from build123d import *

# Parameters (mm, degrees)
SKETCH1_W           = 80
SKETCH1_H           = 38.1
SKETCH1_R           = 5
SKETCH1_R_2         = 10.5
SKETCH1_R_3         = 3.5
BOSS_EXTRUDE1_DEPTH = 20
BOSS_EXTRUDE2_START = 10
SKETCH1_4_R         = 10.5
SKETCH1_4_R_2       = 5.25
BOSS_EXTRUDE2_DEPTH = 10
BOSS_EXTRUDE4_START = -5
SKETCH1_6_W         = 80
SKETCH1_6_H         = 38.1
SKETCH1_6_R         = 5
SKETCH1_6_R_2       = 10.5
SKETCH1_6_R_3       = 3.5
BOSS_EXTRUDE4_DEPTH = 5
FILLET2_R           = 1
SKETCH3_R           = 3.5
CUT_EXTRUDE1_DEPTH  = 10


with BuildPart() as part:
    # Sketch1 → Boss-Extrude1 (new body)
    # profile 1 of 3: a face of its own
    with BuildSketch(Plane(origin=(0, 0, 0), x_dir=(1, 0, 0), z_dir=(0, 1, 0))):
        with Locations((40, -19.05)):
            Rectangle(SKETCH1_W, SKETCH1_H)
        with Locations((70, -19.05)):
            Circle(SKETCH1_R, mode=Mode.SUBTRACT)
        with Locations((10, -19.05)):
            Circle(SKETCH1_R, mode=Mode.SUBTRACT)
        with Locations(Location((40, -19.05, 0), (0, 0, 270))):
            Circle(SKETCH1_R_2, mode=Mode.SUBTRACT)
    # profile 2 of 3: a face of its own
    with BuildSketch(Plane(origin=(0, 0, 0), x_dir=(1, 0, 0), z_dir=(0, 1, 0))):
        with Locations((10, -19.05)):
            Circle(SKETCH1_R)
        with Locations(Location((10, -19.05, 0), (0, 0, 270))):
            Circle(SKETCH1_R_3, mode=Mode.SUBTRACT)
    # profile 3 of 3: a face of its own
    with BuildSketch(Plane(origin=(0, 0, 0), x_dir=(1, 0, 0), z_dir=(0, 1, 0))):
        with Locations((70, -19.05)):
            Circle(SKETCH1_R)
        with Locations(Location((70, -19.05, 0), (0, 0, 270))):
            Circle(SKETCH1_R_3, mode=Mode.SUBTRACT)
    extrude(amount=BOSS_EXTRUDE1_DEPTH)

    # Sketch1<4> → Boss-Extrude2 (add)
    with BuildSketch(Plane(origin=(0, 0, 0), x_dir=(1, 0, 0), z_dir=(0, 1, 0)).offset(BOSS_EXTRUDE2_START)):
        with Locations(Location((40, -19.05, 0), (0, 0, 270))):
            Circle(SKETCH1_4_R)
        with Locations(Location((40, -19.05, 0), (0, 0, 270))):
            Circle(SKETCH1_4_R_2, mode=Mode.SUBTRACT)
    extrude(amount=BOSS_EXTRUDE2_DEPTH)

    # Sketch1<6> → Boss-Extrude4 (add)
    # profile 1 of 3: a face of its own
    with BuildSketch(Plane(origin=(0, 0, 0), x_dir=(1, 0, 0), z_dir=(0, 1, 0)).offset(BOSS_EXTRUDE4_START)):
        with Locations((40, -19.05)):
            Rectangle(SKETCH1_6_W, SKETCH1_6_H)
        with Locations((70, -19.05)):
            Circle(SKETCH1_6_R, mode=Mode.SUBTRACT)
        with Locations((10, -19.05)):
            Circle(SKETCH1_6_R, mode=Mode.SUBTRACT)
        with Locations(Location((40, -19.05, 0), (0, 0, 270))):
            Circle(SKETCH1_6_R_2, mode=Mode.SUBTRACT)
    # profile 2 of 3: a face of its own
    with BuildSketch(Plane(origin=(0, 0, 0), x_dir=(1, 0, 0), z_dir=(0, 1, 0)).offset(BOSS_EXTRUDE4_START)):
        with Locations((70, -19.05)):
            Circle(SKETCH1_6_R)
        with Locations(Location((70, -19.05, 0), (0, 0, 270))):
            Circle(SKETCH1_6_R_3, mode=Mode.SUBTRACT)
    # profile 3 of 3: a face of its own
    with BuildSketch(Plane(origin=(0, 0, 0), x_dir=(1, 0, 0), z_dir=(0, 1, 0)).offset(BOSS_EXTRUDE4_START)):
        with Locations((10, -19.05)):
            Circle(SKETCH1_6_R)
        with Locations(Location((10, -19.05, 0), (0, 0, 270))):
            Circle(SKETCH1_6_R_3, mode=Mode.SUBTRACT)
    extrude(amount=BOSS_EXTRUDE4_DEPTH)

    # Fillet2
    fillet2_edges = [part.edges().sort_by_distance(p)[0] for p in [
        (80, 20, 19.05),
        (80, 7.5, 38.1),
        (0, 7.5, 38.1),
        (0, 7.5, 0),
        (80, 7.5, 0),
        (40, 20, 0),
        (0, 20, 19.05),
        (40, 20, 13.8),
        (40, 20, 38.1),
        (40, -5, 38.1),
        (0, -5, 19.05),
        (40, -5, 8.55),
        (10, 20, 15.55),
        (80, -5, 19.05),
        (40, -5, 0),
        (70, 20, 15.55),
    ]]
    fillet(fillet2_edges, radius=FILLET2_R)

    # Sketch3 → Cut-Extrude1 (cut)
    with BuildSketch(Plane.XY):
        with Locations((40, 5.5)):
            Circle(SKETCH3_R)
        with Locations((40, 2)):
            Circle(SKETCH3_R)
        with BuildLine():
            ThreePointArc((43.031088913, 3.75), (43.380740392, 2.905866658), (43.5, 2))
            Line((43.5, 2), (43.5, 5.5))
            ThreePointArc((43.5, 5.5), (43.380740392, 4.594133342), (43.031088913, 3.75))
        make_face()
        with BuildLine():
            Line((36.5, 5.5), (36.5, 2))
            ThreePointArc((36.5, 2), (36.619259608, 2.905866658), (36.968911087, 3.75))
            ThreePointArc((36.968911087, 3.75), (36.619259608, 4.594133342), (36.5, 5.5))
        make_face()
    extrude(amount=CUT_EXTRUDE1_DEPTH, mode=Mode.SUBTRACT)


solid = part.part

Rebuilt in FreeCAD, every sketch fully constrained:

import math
import FreeCAD as App
import Part
import Sketcher


def edges_at(feature, points):
    """Names of the edges that pass closest to the given points."""
    edges = feature.Shape.Edges
    near = lambda p: min(range(len(edges)), key=lambda i: edges[i].distToShape(Part.Vertex(*p))[0])
    return sorted({f"Edge{near(p) + 1}" for p in points})

doc = App.newDocument("Part")
body = doc.addObject("PartDesign::Body", "Body")

sketch1 = doc.addObject("Sketcher::SketchObject", "Sketch")
body.addObject(sketch1)
sketch1.AttachmentSupport = (doc.XZ_Plane, [""])
sketch1.MapMode = "FlatFace"
sketch1.addGeometry([
    Part.LineSegment(App.Vector(0, 0, 0), App.Vector(0, 38.1, 0)),
    Part.LineSegment(App.Vector(0, 38.1, 0), App.Vector(80, 38.1, 0)),
    Part.LineSegment(App.Vector(80, 38.1, 0), App.Vector(80, 0, 0)),
    Part.LineSegment(App.Vector(80, 0, 0), App.Vector(0, 0, 0)),
    Part.Circle(App.Vector(40, 19.1, 0), App.Vector(0, 0, 1), 10.5),
    Part.Circle(App.Vector(10, 19.1, 0), App.Vector(0, 0, 1), 3.5),
    Part.Circle(App.Vector(70, 19.1, 0), App.Vector(0, 0, 1), 3.5),
], False)
sketch1.addConstraint([
    Sketcher.Constraint("Coincident", 0, 2, 1, 1),
    Sketcher.Constraint("Coincident", 1, 2, 2, 1),
    Sketcher.Constraint("Coincident", 2, 2, 3, 1),
    Sketcher.Constraint("Coincident", 3, 2, 0, 1),
    Sketcher.Constraint("Vertical", 0),
    Sketcher.Constraint("Horizontal", 1),
    Sketcher.Constraint("Vertical", 2),
    Sketcher.Constraint("Horizontal", 3),
    Sketcher.Constraint("Coincident", 3, 2, -1, 1),
    Sketcher.Constraint("Equal", 5, 6),
    Sketcher.Constraint("Horizontal", 4, 3, 5, 3),
    Sketcher.Constraint("Horizontal", 5, 3, 6, 3),
    Sketcher.Constraint("Diameter", 4, 21.0),
    Sketcher.Constraint("Diameter", 5, 7.0),
    Sketcher.Constraint("DistanceX", 1, 1, 1, 2, 80.0),
    Sketcher.Constraint("DistanceY", 0, 1, 0, 2, 38.1),
    Sketcher.Constraint("DistanceX", -1, 1, 4, 3, 40.0),
    Sketcher.Constraint("DistanceX", -1, 1, 5, 3, 10.0),
    Sketcher.Constraint("DistanceX", -1, 1, 6, 3, 70.0),
    Sketcher.Constraint("DistanceY", -1, 1, 4, 3, 19.05),
])
pad1 = doc.addObject("PartDesign::Pad", "Pad")
body.addObject(pad1)
pad1.Profile = sketch1
pad1.Length = 20
pad1.Reversed = True

sketch2 = doc.addObject("Sketcher::SketchObject", "Sketch001")
body.addObject(sketch2)
sketch2.AttachmentSupport = (doc.XZ_Plane, [""])
sketch2.MapMode = "FlatFace"
sketch2.AttachmentOffset = App.Placement(App.Vector(0, 0, -10), App.Rotation())
sketch2.addGeometry([
    Part.Circle(App.Vector(40, 19, 0), App.Vector(0, 0, 1), 10),
    Part.Circle(App.Vector(40, 19, 0), App.Vector(0, 0, 1), 5),
], False)
sketch2.addConstraint([
    Sketcher.Constraint("Coincident", 1, 3, 0, 3),
    Sketcher.Constraint("Diameter", 0, 21.0),
    Sketcher.Constraint("Diameter", 1, 10.5),
    Sketcher.Constraint("DistanceX", -1, 1, 0, 3, 40.0),
    Sketcher.Constraint("DistanceY", -1, 1, 0, 3, 19.05),
])
pad2 = doc.addObject("PartDesign::Pad", "Pad001")
body.addObject(pad2)
pad2.Profile = sketch2
pad2.Length = 10
pad2.Reversed = True

sketch3 = doc.addObject("Sketcher::SketchObject", "Sketch002")
body.addObject(sketch3)
sketch3.AttachmentSupport = (doc.XZ_Plane, [""])
sketch3.MapMode = "FlatFace"
sketch3.AttachmentOffset = App.Placement(App.Vector(0, 0, 5), App.Rotation())
sketch3.addGeometry([
    Part.LineSegment(App.Vector(0, 0, 0), App.Vector(0, 38.1, 0)),
    Part.LineSegment(App.Vector(0, 38.1, 0), App.Vector(80, 38.1, 0)),
    Part.LineSegment(App.Vector(80, 38.1, 0), App.Vector(80, 0, 0)),
    Part.LineSegment(App.Vector(80, 0, 0), App.Vector(0, 0, 0)),
    Part.Circle(App.Vector(40, 19.1, 0), App.Vector(0, 0, 1), 10.5),
    Part.Circle(App.Vector(10, 19.1, 0), App.Vector(0, 0, 1), 3.5),
    Part.Circle(App.Vector(70, 19.1, 0), App.Vector(0, 0, 1), 3.5),
], False)
sketch3.addConstraint([
    Sketcher.Constraint("Coincident", 0, 2, 1, 1),
    Sketcher.Constraint("Coincident", 1, 2, 2, 1),
    Sketcher.Constraint("Coincident", 2, 2, 3, 1),
    Sketcher.Constraint("Coincident", 3, 2, 0, 1),
    Sketcher.Constraint("Vertical", 0),
    Sketcher.Constraint("Horizontal", 1),
    Sketcher.Constraint("Vertical", 2),
    Sketcher.Constraint("Horizontal", 3),
    Sketcher.Constraint("Coincident", 3, 2, -1, 1),
    Sketcher.Constraint("Equal", 5, 6),
    Sketcher.Constraint("Horizontal", 4, 3, 5, 3),
    Sketcher.Constraint("Horizontal", 5, 3, 6, 3),
    Sketcher.Constraint("Diameter", 4, 21.0),
    Sketcher.Constraint("Diameter", 5, 7.0),
    Sketcher.Constraint("DistanceX", 1, 1, 1, 2, 80.0),
    Sketcher.Constraint("DistanceY", 0, 1, 0, 2, 38.1),
    Sketcher.Constraint("DistanceX", -1, 1, 4, 3, 40.0),
    Sketcher.Constraint("DistanceX", -1, 1, 5, 3, 10.0),
    Sketcher.Constraint("DistanceX", -1, 1, 6, 3, 70.0),
    Sketcher.Constraint("DistanceY", -1, 1, 4, 3, 19.05),
])
pad3 = doc.addObject("PartDesign::Pad", "Pad002")
body.addObject(pad3)
pad3.Profile = sketch3
pad3.Length = 5
pad3.Reversed = True
doc.recompute()

fillet = doc.addObject("PartDesign::Fillet", "Fillet")
body.addObject(fillet)
fillet.Base = (pad3, edges_at(pad3, [
    (80, 20, 19.05),
    (80, 7.5, 38.1),
    (0, 7.5, 38.1),
    (0, 7.5, 0),
    (80, 7.5, 0),
    (40, 20, 0),
    (0, 20, 19.05),
    (40, 20, 13.8),
    (40, 20, 38.1),
    (40, -5, 38.1),
    (0, -5, 19.05),
    (40, -5, 8.55),
    (10, 20, 15.55),
    (80, -5, 19.05),
    (40, -5, 0),
    (70, 20, 15.55),
]))
fillet.Radius = 1

sketch4 = doc.addObject("Sketcher::SketchObject", "Sketch003")
body.addObject(sketch4)
sketch4.AttachmentSupport = (doc.XY_Plane, [""])
sketch4.MapMode = "FlatFace"
sketch4.addGeometry([
    Part.ArcOfCircle(Part.Circle(App.Vector(40, 5.5, 0), App.Vector(0, 0, 1), 3.5), math.radians(0), math.radians(180)),
    Part.LineSegment(App.Vector(36.5, 5.5, 0), App.Vector(36.5, 2, 0)),
    Part.ArcOfCircle(Part.Circle(App.Vector(40, 2, 0), App.Vector(0, 0, 1), 3.5), math.radians(180), math.radians(360)),
    Part.LineSegment(App.Vector(43.5, 2, 0), App.Vector(43.5, 5.5, 0)),
], False)
sketch4.addConstraint([
    Sketcher.Constraint("Tangent", 0, 2, 1, 1),
    Sketcher.Constraint("Tangent", 1, 2, 2, 1),
    Sketcher.Constraint("Tangent", 2, 2, 3, 1),
    Sketcher.Constraint("Tangent", 3, 2, 0, 1),
    Sketcher.Constraint("Vertical", 1),
    Sketcher.Constraint("Vertical", 3),
    Sketcher.Constraint("Radius", 0, 3.5),
    Sketcher.Constraint("DistanceY", 1, 2, 1, 1, 3.5),
    Sketcher.Constraint("DistanceX", -1, 1, 0, 3, 40.0),
    Sketcher.Constraint("DistanceY", -1, 1, 2, 3, 2.0),
])
pocket1 = doc.addObject("PartDesign::Pocket", "Pocket")
body.addObject(pocket1)
pocket1.Profile = sketch4
pocket1.Length = 10
pocket1.Reversed = True

doc.recompute()
